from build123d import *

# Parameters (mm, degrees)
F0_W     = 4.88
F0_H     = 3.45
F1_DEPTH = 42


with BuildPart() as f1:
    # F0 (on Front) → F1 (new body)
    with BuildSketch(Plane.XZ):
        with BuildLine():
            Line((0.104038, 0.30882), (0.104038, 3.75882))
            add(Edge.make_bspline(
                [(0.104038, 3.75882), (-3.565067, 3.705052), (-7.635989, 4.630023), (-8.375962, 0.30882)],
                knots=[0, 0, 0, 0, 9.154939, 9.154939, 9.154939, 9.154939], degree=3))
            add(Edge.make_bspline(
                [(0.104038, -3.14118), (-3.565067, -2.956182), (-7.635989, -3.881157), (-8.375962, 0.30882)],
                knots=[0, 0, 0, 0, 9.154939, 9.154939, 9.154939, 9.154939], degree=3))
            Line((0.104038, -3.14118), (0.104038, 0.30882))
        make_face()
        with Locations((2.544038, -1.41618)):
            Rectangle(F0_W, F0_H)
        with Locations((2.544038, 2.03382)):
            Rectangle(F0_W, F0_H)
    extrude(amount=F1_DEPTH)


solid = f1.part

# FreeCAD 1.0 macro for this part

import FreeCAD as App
import Part
import Sketcher

V = App.Vector

doc = App.newDocument("Part")
params = doc.addObject("Spreadsheet::Sheet", "Params")
for row, (alias, value) in enumerate([
    ("sketch1_width", "4.88 mm"),
    ("pad1_length", "42 mm"),
], start=1):
    params.set(f"A{row}", alias)
    params.set(f"B{row}", "=" + value)
    params.setAlias(f"B{row}", alias)

body = doc.addObject("PartDesign::Body", "Body")

# Sketch on XZ plane
sketch1 = body.newObject("Sketcher::SketchObject", "Sketch")
sketch1.AttachmentSupport = (doc.getObject("XZ_Plane"), [""])
sketch1.MapMode = "FlatFace"
sketch1.addGeometry(Part.BSplineCurve([V(0.104038, 3.75882, 0), V(-3.565067, 3.705052, 0), V(-7.635989, 4.630023, 0), V(-8.375962, 0.30882, 0)], [4, 4], [0, 9.154939], False, 3, [1, 1, 1, 1], False), False)
sketch1.addGeometry(Part.BSplineCurve([V(0.104038, -3.14118, 0), V(-3.565067, -2.956182, 0), V(-7.635989, -3.881157, 0), V(-8.375962, 0.30882, 0)], [4, 4], [0, 9.154939], False, 3, [1, 1, 1, 1], False), False)
sketch1.addGeometry(Part.LineSegment(V(0.104038, -3.14118, 0), V(4.984038, -3.14118, 0)), False)
sketch1.addGeometry(Part.LineSegment(V(4.984038, -3.14118, 0), V(4.984038, 3.75882, 0)), False)
sketch1.addGeometry(Part.LineSegment(V(4.984038, 3.75882, 0), V(0.104038, 3.75882, 0)), False)
sketch1.addConstraint(Sketcher.Constraint("Block", 0))
sketch1.addConstraint(Sketcher.Constraint("Block", 1))
sketch1.addConstraint(Sketcher.Constraint("Coincident", 1, 1, 2, 1))
sketch1.addConstraint(Sketcher.Constraint("Coincident", 2, 2, 3, 1))
sketch1.addConstraint(Sketcher.Constraint("Coincident", 3, 2, 4, 1))
sketch1.addConstraint(Sketcher.Constraint("Coincident", 4, 2, 0, 1))
sketch1.addConstraint(Sketcher.Constraint("Horizontal", 2))
sketch1.addConstraint(Sketcher.Constraint("Vertical", 3))
sketch1.addConstraint(Sketcher.Constraint("Horizontal", 4))
sketch1.addConstraint(Sketcher.Constraint("DistanceX", 2, 1, 2, 2, 4.88))
sketch1.setExpression("Constraints[9]", "Params.sketch1_width")
pad1 = body.newObject("PartDesign::Pad", "Pad")
pad1.Profile = sketch1
pad1.setExpression("Length", "Params.pad1_length")

doc.recompute()
